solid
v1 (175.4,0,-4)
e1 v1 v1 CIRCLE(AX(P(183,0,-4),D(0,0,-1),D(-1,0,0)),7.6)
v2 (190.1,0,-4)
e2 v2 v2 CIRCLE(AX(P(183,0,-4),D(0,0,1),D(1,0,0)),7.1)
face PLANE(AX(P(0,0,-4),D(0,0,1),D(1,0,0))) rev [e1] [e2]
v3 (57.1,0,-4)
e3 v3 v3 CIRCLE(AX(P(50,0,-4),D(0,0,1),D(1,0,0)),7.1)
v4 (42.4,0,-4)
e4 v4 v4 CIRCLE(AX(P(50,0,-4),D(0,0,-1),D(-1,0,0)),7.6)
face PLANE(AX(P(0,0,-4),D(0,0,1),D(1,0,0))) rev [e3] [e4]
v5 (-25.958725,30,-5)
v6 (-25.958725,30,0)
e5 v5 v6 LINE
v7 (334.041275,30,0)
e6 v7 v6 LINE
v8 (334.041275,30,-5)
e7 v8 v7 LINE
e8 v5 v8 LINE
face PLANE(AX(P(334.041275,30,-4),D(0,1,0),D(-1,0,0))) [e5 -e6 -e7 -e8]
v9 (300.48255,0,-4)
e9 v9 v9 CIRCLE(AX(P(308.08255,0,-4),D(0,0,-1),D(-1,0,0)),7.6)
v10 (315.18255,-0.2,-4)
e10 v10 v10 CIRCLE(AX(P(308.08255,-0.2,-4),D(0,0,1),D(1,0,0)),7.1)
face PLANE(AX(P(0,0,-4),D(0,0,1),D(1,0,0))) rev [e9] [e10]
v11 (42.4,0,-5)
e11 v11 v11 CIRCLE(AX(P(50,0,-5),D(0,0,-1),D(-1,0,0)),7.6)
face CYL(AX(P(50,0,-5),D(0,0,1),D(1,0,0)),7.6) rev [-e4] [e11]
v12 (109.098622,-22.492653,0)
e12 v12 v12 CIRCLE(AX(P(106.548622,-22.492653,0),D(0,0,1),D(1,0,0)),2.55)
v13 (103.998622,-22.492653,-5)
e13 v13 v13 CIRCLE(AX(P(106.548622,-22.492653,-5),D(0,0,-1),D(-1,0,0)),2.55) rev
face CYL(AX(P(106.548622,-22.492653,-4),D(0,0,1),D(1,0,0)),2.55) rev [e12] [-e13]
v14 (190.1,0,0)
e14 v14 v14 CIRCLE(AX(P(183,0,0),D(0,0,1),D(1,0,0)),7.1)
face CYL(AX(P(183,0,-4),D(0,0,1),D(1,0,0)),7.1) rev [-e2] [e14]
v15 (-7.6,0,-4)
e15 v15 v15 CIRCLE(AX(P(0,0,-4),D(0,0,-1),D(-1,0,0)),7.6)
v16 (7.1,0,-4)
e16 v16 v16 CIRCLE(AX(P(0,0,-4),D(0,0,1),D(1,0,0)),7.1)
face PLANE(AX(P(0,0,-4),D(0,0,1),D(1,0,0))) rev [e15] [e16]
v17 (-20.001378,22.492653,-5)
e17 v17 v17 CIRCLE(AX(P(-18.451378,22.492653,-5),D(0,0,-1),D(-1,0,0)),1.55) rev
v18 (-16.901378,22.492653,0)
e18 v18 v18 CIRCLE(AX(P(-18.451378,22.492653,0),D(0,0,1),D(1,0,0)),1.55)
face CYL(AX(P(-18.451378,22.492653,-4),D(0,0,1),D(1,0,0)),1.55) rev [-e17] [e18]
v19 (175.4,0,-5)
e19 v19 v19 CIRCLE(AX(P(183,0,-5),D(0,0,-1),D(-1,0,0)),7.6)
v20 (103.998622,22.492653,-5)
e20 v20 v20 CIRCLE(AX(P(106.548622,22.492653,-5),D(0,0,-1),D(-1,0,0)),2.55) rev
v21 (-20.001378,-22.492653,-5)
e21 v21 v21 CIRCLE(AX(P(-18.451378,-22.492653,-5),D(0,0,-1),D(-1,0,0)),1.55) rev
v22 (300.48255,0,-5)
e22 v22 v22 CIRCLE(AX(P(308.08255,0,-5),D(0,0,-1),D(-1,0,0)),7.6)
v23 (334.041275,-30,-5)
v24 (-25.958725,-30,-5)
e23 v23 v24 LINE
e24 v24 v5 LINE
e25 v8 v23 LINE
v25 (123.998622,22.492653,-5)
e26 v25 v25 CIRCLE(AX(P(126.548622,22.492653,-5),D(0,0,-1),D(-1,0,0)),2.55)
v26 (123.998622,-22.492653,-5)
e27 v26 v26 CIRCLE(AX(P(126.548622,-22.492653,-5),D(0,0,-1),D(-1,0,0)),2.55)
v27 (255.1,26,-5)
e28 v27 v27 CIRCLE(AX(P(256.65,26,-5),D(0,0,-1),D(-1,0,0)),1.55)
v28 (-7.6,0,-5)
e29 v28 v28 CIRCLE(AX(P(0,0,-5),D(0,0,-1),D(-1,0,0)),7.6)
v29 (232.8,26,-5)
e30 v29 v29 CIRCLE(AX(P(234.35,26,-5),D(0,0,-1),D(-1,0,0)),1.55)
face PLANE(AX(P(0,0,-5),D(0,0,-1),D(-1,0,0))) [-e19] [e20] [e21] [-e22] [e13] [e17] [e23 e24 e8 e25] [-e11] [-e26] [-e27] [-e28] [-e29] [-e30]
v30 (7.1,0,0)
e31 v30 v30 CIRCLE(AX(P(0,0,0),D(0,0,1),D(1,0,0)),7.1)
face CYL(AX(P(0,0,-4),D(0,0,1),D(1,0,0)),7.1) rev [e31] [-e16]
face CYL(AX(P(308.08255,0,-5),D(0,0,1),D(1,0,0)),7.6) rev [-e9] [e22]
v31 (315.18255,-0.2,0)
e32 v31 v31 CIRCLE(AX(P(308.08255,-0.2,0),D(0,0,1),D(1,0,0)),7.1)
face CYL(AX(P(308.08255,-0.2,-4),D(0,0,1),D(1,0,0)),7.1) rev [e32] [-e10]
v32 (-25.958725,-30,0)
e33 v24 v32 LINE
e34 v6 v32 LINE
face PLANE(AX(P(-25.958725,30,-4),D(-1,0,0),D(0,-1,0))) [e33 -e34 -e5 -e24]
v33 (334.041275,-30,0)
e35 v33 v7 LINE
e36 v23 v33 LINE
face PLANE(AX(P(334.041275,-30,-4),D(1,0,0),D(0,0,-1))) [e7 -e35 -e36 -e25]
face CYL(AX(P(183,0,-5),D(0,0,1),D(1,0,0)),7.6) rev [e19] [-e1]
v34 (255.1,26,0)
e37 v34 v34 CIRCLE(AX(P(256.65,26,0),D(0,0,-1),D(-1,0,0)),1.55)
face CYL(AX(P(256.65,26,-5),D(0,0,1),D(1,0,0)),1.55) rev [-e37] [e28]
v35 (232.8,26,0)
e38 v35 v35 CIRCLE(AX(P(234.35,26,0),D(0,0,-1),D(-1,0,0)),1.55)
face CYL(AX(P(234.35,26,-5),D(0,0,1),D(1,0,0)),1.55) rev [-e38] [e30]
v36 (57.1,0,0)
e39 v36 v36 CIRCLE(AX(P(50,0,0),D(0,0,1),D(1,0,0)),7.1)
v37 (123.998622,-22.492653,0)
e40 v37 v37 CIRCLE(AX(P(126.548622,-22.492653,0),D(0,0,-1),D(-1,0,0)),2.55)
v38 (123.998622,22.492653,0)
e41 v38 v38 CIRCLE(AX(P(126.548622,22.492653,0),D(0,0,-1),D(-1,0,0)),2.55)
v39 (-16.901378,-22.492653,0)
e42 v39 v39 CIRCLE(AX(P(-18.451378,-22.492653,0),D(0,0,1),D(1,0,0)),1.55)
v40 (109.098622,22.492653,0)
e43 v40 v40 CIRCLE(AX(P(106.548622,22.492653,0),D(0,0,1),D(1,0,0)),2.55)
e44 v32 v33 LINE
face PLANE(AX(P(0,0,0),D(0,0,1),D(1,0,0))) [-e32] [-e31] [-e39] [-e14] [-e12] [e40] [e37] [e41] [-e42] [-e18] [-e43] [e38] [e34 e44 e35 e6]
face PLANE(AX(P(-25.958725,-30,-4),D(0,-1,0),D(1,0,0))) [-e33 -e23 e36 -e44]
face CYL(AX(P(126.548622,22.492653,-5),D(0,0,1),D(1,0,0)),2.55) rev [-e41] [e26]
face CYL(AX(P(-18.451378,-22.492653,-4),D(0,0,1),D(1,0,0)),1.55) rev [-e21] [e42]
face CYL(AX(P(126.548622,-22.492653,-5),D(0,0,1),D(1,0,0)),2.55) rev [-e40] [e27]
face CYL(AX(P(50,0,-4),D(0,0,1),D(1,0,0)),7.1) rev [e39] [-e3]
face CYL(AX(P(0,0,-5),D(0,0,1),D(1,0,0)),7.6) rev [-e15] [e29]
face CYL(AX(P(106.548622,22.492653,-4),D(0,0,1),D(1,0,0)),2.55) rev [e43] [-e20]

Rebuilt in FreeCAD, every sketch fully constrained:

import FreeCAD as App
import Part
import Sketcher
from FreeCAD import Vector
Q = App.Units.Quantity

doc = App.newDocument("Part")
params = doc.addObject("Spreadsheet::Sheet", "Params")
for row, (alias, value) in enumerate([
    ("sketch1_diameter", "3.1 mm"),
    ("sketch1_diameter2", "5.1 mm"),
    ("sketch1_diameter3", "14.2 mm"),
    ("sketch1_width", "360 mm"),
    ("sketch1_height", "60 mm"),
    ("pad1_length", "4 mm"),
    ("sketch2_diameter", "15.2 mm"),
    ("sketch2_diameter2", "5.1 mm"),
    ("sketch2_diameter3", "3.1 mm"),
    ("sketch2_width", "360 mm"),
    ("sketch2_height", "60 mm"),
    ("pad2_length", "1 mm"),
    ("sketch3_diameter", "5.1 mm"),
    ("sketch3_diameter2", "3.1 mm"),
    ("pocket1_length", "4 mm"),
], start=1):
    params.set(f"A{row}", alias)
    params.set(f"B{row}", "=" + value)
    params.setAlias(f"B{row}", alias)

body = doc.addObject("PartDesign::Body", "Body")

# Sketch on XY plane
sketch1 = doc.addObject("Sketcher::SketchObject", "Sketch")
body.addObject(sketch1)
sketch1.AttachmentSupport = (doc.XY_Plane, [""])
sketch1.MapMode = "FlatFace"
sketch1.addGeometry([
    Part.LineSegment(Vector(-25.958725, 30, 0), Vector(-25.958725, -30, 0)),  # 0
    Part.LineSegment(Vector(-25.958725, -30, 0), Vector(334.041275, -30, 0)),  # 1
    Part.LineSegment(Vector(334.041275, -30, 0), Vector(334.041275, 30, 0)),  # 2
    Part.LineSegment(Vector(334.041275, 30, 0), Vector(-25.958725, 30, 0)),  # 3
    Part.Circle(Vector(-18.451378, -22.492653, 0), Vector(0, 0, 1), 1.55),  # 4
    Part.Circle(Vector(106.548622, -22.492653, 0), Vector(0, 0, 1), 2.55),  # 5
    Part.Circle(Vector(0, 0, 0), Vector(0, 0, 1), 7.1),  # 6
    Part.Circle(Vector(50, 0, 0), Vector(0, 0, 1), 7.1),  # 7
    Part.Circle(Vector(183, 0, 0), Vector(0, 0, 1), 7.1),  # 8
    Part.Circle(Vector(308.08255, -0.2, 0), Vector(0, 0, 1), 7.1),  # 9
    Part.Circle(Vector(-18.451378, 22.492653, 0), Vector(0, 0, 1), 1.55),  # 10
    Part.Circle(Vector(106.548622, 22.492653, 0), Vector(0, 0, 1), 2.55),  # 11
], False)
sketch1.addConstraint([
    Sketcher.Constraint("Coincident", 0, 2, 1, 1),
    Sketcher.Constraint("Coincident", 1, 2, 2, 1),
    Sketcher.Constraint("Coincident", 2, 2, 3, 1),
    Sketcher.Constraint("Coincident", 3, 2, 0, 1),
    Sketcher.Constraint("Vertical", 0),
    Sketcher.Constraint("Horizontal", 1),
    Sketcher.Constraint("Vertical", 2),
    Sketcher.Constraint("Horizontal", 3),
    Sketcher.Constraint("Coincident", 6, 3, -1, 1),
    Sketcher.Constraint("Equal", 6, 7),
    Sketcher.Constraint("Equal", 7, 8),
    Sketcher.Constraint("Equal", 8, 9),
    Sketcher.Constraint("Equal", 4, 10),
    Sketcher.Constraint("Equal", 5, 11),
    Sketcher.Constraint("Symmetric", 4, 3, 10, 3, -1),
    Sketcher.Constraint("Symmetric", 5, 3, 11, 3, -1),
    Sketcher.Constraint("PointOnObject", 7, 3, -1),
    Sketcher.Constraint("PointOnObject", 8, 3, -1),
    Sketcher.Constraint("Horizontal", 4, 3, 5, 3),
    Sketcher.Constraint("Diameter", 4, Q("3.1 mm")),
    Sketcher.Constraint("Diameter", 5, Q("5.1 mm")),
    Sketcher.Constraint("Diameter", 6, Q("14.2 mm")),
    Sketcher.Constraint("DistanceX", 1, 1, 1, 2, Q("360 mm")),
    Sketcher.Constraint("DistanceY", 0, 2, 0, 1, Q("60 mm")),
    Sketcher.Constraint("DistanceX", -1, 1, 7, 3, Q("50 mm")),
    Sketcher.Constraint("DistanceX", -1, 1, 8, 3, Q("183 mm")),
    Sketcher.Constraint("DistanceY", 0, 2, -1, 1, Q("30 mm")),
    Sketcher.Constraint("DistanceX", 4, 3, 5, 3, Q("125 mm")),
    Sketcher.Constraint("DistanceY", 9, 3, -1, 1, Q("0.2 mm")),
    Sketcher.Constraint("DistanceX", -1, 1, 9, 3, Q("308.08255 mm")),
    Sketcher.Constraint("DistanceX", 5, 3, 9, 3, Q("201.533928 mm")),
    Sketcher.Constraint("DistanceY", 4, 3, -1, 1, Q("22.492653 mm")),
    Sketcher.Constraint("DistanceX", 0, 2, -1, 1, Q("25.958725 mm")),
])
sketch1.setExpression("Constraints[19]", "Params.sketch1_diameter")
sketch1.setExpression("Constraints[20]", "Params.sketch1_diameter2")
sketch1.setExpression("Constraints[21]", "Params.sketch1_diameter3")
sketch1.setExpression("Constraints[22]", "Params.sketch1_width")
sketch1.setExpression("Constraints[23]", "Params.sketch1_height")
pad1 = doc.addObject("PartDesign::Pad", "Pad")
body.addObject(pad1)
pad1.Profile = sketch1
pad1.setExpression("Length", "Params.pad1_length")
pad1.Reversed = True

# Sketch on XY plane
sketch2 = doc.addObject("Sketcher::SketchObject", "Sketch001")
body.addObject(sketch2)
sketch2.AttachmentSupport = (doc.XY_Plane, [""])
sketch2.MapMode = "FlatFace"
sketch2.AttachmentOffset = App.Placement(Vector(0, 0, -4), App.Rotation())
sketch2.addGeometry([
    Part.LineSegment(Vector(334.041275, 30, 0), Vector(334.041275, -30, 0)),  # 0
    Part.LineSegment(Vector(334.041275, -30, 0), Vector(-25.958725, -30, 0)),  # 1
    Part.LineSegment(Vector(-25.958725, -30, 0), Vector(-25.958725, 30, 0)),  # 2
    Part.LineSegment(Vector(-25.958725, 30, 0), Vector(334.041275, 30, 0)),  # 3
    Part.Circle(Vector(308.08255, 0, 0), Vector(0, 0, 1), 7.6),  # 4
    Part.Circle(Vector(183, 0, 0), Vector(0, 0, 1), 7.6),  # 5
    Part.Circle(Vector(126.548622, -22.492653, 0), Vector(0, 0, 1), 2.55),  # 6
    Part.Circle(Vector(106.548622, -22.492653, 0), Vector(0, 0, 1), 2.55),  # 7
    Part.Circle(Vector(-18.451378, -22.492653, 0), Vector(0, 0, 1), 1.55),  # 8
    Part.Circle(Vector(50, 0, 0), Vector(0, 0, 1), 7.6),  # 9
    Part.Circle(Vector(0, 0, 0), Vector(0, 0, 1), 7.6),  # 10
    Part.Circle(Vector(256.65, 26, 0), Vector(0, 0, 1), 1.55),  # 11
    Part.Circle(Vector(234.35, 26, 0), Vector(0, 0, 1), 1.55),  # 12
    Part.Circle(Vector(126.548622, 22.492653, 0), Vector(0, 0, 1), 2.55),  # 13
    Part.Circle(Vector(106.548622, 22.492653, 0), Vector(0, 0, 1), 2.55),  # 14
    Part.Circle(Vector(-18.451378, 22.492653, 0), Vector(0, 0, 1), 1.55),  # 15
], False)
sketch2.addConstraint([
    Sketcher.Constraint("Coincident", 0, 2, 1, 1),
    Sketcher.Constraint("Coincident", 1, 2, 2, 1),
    Sketcher.Constraint("Coincident", 2, 2, 3, 1),
    Sketcher.Constraint("Coincident", 3, 2, 0, 1),
    Sketcher.Constraint("Vertical", 0),
    Sketcher.Constraint("Horizontal", 1),
    Sketcher.Constraint("Vertical", 2),
    Sketcher.Constraint("Horizontal", 3),
    Sketcher.Constraint("Coincident", 10, 3, -1, 1),
    Sketcher.Constraint("Equal", 4, 5),
    Sketcher.Constraint("Equal", 6, 7),
    Sketcher.Constraint("Equal", 5, 9),
    Sketcher.Constraint("Equal", 9, 10),
    Sketcher.Constraint("Equal", 8, 11),
    Sketcher.Constraint("Equal", 11, 12),
    Sketcher.Constraint("Equal", 7, 13),
    Sketcher.Constraint("Equal", 13, 14),
    Sketcher.Constraint("Equal", 12, 15),
    Sketcher.Constraint("Symmetric", 6, 3, 13, 3, -1),
    Sketcher.Constraint("Symmetric", 7, 3, 14, 3, -1),
    Sketcher.Constraint("Symmetric", 8, 3, 15, 3, -1),
    Sketcher.Constraint("PointOnObject", 4, 3, -1),
    Sketcher.Constraint("PointOnObject", 5, 3, -1),
    Sketcher.Constraint("PointOnObject", 9, 3, -1),
    Sketcher.Constraint("Horizontal", 6, 3, 7, 3),
    Sketcher.Constraint("Horizontal", 7, 3, 8, 3),
    Sketcher.Constraint("Horizontal", 11, 3, 12, 3),
    Sketcher.Constraint("Diameter", 4, Q("15.2 mm")),
    Sketcher.Constraint("Diameter", 6, Q("5.1 mm")),
    Sketcher.Constraint("Diameter", 8, Q("3.1 mm")),
    Sketcher.Constraint("DistanceX", 1, 2, 1, 1, Q("360 mm")),
    Sketcher.Constraint("DistanceY", 0, 2, 0, 1, Q("60 mm")),
    Sketcher.Constraint("DistanceX", -1, 1, 5, 3, Q("183 mm")),
    Sketcher.Constraint("DistanceX", -1, 1, 9, 3, Q("50 mm")),
    Sketcher.Constraint("DistanceY", -1, 1, 11, 3, Q("26 mm")),
    Sketcher.Constraint("DistanceY", 0, 2, -1, 1, Q("30 mm")),
    Sketcher.Constraint("DistanceX", 7, 3, 6, 3, Q("20 mm")),
    Sketcher.Constraint("DistanceX", 8, 3, 7, 3, Q("125 mm")),
    Sketcher.Constraint("DistanceX", 12, 3, 11, 3, Q("22.3 mm")),
    Sketcher.Constraint("DistanceX", -1, 1, 11, 3, Q("256.65 mm")),
    Sketcher.Constraint("DistanceX", -1, 1, 4, 3, Q("308.08255 mm")),
    Sketcher.Constraint("DistanceX", 6, 3, 4, 3, Q("181.533928 mm")),
    Sketcher.Constraint("DistanceY", 6, 3, -1, 1, Q("22.492653 mm")),
    Sketcher.Constraint("DistanceX", -1, 1, 0, 2, Q("334.041275 mm")),
])
sketch2.setExpression("Constraints[27]", "Params.sketch2_diameter")
sketch2.setExpression("Constraints[28]", "Params.sketch2_diameter2")
sketch2.setExpression("Constraints[29]", "Params.sketch2_diameter3")
sketch2.setExpression("Constraints[30]", "Params.sketch2_width")
sketch2.setExpression("Constraints[31]", "Params.sketch2_height")
pad2 = doc.addObject("PartDesign::Pad", "Pad001")
body.addObject(pad2)
pad2.Profile = sketch2
pad2.setExpression("Length", "Params.pad2_length")
pad2.Reversed = True

# Sketch on XY plane
sketch3 = doc.addObject("Sketcher::SketchObject", "Sketch002")
body.addObject(sketch3)
sketch3.AttachmentSupport = (doc.XY_Plane, [""])
sketch3.MapMode = "FlatFace"
sketch3.addGeometry([
    Part.Circle(Vector(126.548622, 22.492653, 0), Vector(0, 0, 1), 2.55),
    Part.Circle(Vector(126.548622, -22.492653, 0), Vector(0, 0, 1), 2.55),
    Part.Circle(Vector(256.65, 26, 0), Vector(0, 0, 1), 1.55),
    Part.Circle(Vector(234.35, 26, 0), Vector(0, 0, 1), 1.55),
], False)
sketch3.addConstraint([
    Sketcher.Constraint("Equal", 0, 1),
    Sketcher.Constraint("Equal", 2, 3),
    Sketcher.Constraint("Symmetric", 0, 3, 1, 3, -1),
    Sketcher.Constraint("Horizontal", 2, 3, 3, 3),
    Sketcher.Constraint("Diameter", 0, Q("5.1 mm")),
    Sketcher.Constraint("Diameter", 2, Q("3.1 mm")),
    Sketcher.Constraint("DistanceY", -1, 1, 2, 3, Q("26 mm")),
    Sketcher.Constraint("DistanceX", 3, 3, 2, 3, Q("22.3 mm")),
    Sketcher.Constraint("DistanceX", -1, 1, 2, 3, Q("256.65 mm")),
    Sketcher.Constraint("DistanceX", -1, 1, 0, 3, Q("126.548622 mm")),
    Sketcher.Constraint("DistanceY", -1, 1, 0, 3, Q("22.492653 mm")),
])
sketch3.setExpression("Constraints[4]", "Params.sketch3_diameter")
sketch3.setExpression("Constraints[5]", "Params.sketch3_diameter2")
pocket1 = doc.addObject("PartDesign::Pocket", "Pocket")
body.addObject(pocket1)
pocket1.Profile = sketch3
pocket1.setExpression("Length", "Params.pocket1_length")

doc.recompute()
